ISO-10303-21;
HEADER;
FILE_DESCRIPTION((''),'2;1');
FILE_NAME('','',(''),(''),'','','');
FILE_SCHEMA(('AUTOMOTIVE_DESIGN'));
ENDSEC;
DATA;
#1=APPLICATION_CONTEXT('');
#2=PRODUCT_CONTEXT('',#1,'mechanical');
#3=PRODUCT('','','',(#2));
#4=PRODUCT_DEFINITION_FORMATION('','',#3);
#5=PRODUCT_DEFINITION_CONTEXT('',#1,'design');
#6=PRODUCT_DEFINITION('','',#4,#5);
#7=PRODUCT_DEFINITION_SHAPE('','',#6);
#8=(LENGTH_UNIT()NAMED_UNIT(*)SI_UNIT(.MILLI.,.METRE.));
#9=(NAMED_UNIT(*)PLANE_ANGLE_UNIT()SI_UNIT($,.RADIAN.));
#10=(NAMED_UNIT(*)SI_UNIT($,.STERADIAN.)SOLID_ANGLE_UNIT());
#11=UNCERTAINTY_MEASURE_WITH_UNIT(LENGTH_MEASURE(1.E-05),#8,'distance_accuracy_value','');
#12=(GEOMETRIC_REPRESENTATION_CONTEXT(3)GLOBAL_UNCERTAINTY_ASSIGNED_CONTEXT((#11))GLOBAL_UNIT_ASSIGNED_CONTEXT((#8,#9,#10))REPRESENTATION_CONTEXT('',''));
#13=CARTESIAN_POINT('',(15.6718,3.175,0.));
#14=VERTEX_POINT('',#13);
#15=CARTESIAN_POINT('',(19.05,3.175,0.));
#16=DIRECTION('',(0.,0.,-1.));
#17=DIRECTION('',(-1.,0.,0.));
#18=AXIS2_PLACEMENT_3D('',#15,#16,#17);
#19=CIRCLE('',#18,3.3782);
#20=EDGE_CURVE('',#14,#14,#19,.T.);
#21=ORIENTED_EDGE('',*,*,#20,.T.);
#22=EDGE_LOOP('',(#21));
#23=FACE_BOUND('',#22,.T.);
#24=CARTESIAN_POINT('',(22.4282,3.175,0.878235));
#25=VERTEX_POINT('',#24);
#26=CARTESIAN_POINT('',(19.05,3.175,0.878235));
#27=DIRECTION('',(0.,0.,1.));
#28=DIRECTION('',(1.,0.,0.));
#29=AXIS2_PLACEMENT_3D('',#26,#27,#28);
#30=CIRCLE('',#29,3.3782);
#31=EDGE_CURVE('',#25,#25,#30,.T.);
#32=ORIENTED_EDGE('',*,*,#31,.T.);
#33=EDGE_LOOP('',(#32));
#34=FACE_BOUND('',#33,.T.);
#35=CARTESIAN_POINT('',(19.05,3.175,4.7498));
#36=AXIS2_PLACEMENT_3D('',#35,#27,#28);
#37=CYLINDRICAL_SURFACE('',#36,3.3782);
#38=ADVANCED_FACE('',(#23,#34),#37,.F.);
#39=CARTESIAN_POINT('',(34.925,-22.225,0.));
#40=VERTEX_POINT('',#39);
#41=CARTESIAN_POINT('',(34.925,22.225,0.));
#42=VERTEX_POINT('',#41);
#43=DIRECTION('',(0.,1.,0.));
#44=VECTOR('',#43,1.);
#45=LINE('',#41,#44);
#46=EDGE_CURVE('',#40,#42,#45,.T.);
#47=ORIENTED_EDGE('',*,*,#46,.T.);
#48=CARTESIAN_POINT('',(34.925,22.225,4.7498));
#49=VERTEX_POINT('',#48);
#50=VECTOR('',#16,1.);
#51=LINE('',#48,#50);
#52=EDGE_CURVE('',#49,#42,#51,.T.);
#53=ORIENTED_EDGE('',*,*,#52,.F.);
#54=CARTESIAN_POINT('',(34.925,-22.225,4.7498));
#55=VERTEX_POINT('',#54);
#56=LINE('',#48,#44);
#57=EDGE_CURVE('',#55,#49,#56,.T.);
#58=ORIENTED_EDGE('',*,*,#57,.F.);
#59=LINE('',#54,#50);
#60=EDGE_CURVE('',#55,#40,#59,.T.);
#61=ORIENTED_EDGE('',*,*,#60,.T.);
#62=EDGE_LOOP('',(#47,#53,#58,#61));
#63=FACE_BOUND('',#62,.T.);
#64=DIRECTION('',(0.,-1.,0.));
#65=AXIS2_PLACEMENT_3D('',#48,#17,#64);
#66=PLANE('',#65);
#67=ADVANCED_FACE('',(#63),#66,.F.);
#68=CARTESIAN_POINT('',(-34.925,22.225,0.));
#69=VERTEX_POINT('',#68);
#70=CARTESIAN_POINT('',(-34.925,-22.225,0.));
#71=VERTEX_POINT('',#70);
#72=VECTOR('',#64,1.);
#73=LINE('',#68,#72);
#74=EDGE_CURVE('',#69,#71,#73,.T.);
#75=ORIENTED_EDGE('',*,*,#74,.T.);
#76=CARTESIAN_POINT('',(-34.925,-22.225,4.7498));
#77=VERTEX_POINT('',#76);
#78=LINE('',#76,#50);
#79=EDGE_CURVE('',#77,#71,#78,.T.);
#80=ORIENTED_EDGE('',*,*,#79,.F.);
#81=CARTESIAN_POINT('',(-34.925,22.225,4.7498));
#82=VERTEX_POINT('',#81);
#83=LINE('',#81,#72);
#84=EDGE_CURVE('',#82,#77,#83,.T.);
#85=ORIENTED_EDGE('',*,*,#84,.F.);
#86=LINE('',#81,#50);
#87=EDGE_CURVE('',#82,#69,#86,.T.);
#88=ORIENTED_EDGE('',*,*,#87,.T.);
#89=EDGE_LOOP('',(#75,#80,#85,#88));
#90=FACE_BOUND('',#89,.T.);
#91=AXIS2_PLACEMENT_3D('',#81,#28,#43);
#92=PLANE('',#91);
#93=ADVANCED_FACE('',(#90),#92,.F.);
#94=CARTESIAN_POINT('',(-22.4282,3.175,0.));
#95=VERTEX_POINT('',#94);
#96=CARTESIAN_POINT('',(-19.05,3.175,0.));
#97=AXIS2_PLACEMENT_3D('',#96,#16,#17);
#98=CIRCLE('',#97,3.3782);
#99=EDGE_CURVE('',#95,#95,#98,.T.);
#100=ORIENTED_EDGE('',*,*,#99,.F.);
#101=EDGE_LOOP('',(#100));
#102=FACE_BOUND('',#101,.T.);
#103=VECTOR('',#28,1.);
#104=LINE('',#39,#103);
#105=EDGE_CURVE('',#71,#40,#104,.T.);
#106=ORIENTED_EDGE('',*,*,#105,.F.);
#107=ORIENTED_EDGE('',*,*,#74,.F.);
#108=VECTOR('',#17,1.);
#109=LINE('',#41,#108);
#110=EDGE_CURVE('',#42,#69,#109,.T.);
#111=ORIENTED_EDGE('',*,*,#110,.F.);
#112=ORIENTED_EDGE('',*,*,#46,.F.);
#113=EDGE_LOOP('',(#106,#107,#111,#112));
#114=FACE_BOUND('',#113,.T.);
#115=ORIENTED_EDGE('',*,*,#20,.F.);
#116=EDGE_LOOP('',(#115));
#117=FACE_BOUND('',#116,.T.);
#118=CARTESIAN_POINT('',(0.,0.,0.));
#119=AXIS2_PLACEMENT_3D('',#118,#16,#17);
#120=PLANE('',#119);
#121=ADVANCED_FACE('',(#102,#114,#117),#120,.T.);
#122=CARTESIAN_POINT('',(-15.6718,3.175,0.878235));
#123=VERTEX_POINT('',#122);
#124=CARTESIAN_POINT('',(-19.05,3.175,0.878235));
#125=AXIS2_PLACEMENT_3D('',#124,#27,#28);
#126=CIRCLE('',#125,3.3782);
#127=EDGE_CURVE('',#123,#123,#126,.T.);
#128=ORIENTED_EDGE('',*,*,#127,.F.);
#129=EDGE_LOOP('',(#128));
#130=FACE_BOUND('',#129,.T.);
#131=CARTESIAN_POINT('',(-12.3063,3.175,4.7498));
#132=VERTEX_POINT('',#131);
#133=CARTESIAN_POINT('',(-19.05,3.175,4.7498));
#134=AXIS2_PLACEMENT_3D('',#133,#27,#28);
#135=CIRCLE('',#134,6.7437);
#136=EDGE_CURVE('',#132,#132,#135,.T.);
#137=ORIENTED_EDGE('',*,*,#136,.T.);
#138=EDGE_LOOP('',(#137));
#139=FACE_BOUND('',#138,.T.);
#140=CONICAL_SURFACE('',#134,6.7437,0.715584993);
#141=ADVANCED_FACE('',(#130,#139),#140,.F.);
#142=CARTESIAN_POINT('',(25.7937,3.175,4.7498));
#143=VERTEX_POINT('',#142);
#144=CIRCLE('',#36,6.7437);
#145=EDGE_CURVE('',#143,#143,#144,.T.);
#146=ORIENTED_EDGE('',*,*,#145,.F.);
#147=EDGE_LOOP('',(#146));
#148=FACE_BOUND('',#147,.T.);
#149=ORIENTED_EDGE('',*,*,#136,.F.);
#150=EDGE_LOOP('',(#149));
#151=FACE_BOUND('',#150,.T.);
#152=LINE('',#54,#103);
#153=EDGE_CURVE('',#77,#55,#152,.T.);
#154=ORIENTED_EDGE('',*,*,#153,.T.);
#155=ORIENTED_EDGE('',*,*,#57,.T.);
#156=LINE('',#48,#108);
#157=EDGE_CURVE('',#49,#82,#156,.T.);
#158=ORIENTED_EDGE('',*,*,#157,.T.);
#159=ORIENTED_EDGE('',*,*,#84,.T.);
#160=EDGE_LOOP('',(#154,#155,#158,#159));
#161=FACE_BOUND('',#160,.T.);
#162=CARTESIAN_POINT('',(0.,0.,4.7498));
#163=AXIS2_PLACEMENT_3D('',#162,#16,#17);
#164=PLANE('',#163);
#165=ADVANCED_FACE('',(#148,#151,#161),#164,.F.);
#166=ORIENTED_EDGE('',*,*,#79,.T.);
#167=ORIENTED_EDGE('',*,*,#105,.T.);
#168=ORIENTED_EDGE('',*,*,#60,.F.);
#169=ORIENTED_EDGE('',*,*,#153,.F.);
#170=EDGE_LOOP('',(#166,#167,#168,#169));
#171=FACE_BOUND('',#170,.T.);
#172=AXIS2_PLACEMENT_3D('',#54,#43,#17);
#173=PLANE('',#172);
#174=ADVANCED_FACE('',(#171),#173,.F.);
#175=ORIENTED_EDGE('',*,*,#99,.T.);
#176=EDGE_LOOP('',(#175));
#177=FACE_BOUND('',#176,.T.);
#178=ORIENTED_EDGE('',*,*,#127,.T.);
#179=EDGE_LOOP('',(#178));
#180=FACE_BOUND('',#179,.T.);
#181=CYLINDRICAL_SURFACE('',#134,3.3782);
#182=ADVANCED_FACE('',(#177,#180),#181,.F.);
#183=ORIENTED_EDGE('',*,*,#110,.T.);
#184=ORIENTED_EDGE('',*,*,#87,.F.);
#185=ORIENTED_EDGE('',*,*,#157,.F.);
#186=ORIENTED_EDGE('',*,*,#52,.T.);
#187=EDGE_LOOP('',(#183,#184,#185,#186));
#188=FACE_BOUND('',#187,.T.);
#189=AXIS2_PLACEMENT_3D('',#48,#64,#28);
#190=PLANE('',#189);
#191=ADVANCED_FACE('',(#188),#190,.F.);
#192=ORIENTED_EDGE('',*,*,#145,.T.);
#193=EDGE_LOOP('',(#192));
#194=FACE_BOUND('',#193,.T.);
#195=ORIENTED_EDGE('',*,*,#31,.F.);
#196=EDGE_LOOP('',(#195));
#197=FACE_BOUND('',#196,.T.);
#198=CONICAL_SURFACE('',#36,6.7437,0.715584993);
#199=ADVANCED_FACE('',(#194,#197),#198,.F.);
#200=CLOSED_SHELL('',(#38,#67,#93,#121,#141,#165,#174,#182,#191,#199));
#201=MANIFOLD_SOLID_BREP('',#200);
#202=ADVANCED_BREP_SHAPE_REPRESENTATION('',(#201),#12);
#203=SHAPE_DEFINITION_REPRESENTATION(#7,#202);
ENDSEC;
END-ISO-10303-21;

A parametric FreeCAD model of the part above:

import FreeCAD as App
import Part
import Sketcher

V = App.Vector
Q = App.Units.Quantity

doc = App.newDocument("Part")
body = doc.addObject("PartDesign::Body", "Body")

sketch1 = body.newObject("Sketcher::SketchObject", "Sketch")
sketch1.AttachmentSupport = (doc.getObject("XY_Plane"), [""])
sketch1.MapMode = "FlatFace"
sketch1.addGeometry([
    Part.LineSegment(V(-34.925, 22.225, 0), V(-34.925, -22.225, 0)),
    Part.LineSegment(V(-34.925, -22.225, 0), V(34.925, -22.225, 0)),
    Part.LineSegment(V(34.925, -22.225, 0), V(34.925, 22.225, 0)),
    Part.LineSegment(V(34.925, 22.225, 0), V(-34.925, 22.225, 0)),
], False)
sketch1.addConstraint([
    Sketcher.Constraint("Coincident", 0, 2, 1, 1),
    Sketcher.Constraint("Coincident", 1, 2, 2, 1),
    Sketcher.Constraint("Coincident", 2, 2, 3, 1),
    Sketcher.Constraint("Coincident", 3, 2, 0, 1),
    Sketcher.Constraint("Vertical", 0),
    Sketcher.Constraint("Horizontal", 1),
    Sketcher.Constraint("Vertical", 2),
    Sketcher.Constraint("Horizontal", 3),
    Sketcher.Constraint("Symmetric", 0, 2, 2, 2, -1, 1),
    Sketcher.Constraint("DistanceX", 1, 1, 1, 2, Q("2.75 in")),
    Sketcher.Constraint("DistanceY", 0, 2, 0, 1, Q("1.75 in")),
])
pad1 = body.newObject("PartDesign::Pad", "Pad")
pad1.Profile = sketch1
pad1.Length = Q("0.187 in")

sketch2 = body.newObject("Sketcher::SketchObject", "Sketch001")
sketch2.AttachmentSupport = (doc.getObject("YZ_Plane"), [""])
sketch2.MapMode = "FlatFace"
sketch2.AttachmentOffset = App.Placement(V(0, 0, -0.75 * 25.4), App.Rotation())
sketch2.addGeometry([
    Part.LineSegment(V(3.175, 0, 0), V(3.175, 4.7498, 0)),
    Part.LineSegment(V(3.175, 4.7498, 0), V(-3.5687, 4.7498, 0)),
    Part.LineSegment(V(-3.5687, 4.7498, 0), V(-0.2032, 0.878235, 0)),
    Part.LineSegment(V(-0.2032, 0.878235, 0), V(-0.2032, 0, 0)),
    Part.LineSegment(V(-0.2032, 0, 0), V(3.175, 0, 0)),
], False)
sketch2.addGeometry(Part.LineSegment(V(3.175, 4.7498, 0), V(3.175, 0, 0)), True)
sketch2.addConstraint([
    Sketcher.Constraint("Coincident", 0, 2, 1, 1),
    Sketcher.Constraint("Coincident", 1, 2, 2, 1),
    Sketcher.Constraint("Coincident", 2, 2, 3, 1),
    Sketcher.Constraint("Coincident", 3, 2, 4, 1),
    Sketcher.Constraint("Coincident", 4, 2, 0, 1),
    Sketcher.Constraint("Vertical", 0),
    Sketcher.Constraint("Horizontal", 1),
    Sketcher.Constraint("Vertical", 3),
    Sketcher.Constraint("Horizontal", 4),
    Sketcher.Constraint("Vertical", 5),
    Sketcher.Constraint("Coincident", 5, 1, 0, 2),
    Sketcher.Constraint("PointOnObject", 3, 2, -1),
    Sketcher.Constraint("PointOnObject", 5, 2, -1),
    Sketcher.Constraint("Angle", 2, Q("-49 deg")),
    Sketcher.Constraint("DistanceX", 4, 1, 4, 2, Q("0.133 in")),
    Sketcher.Constraint("DistanceY", 0, 1, 0, 2, Q("0.187 in")),
    Sketcher.Constraint("DistanceX", 1, 2, 1, 1, Q("0.2655 in")),
    Sketcher.Constraint("DistanceX", -1, 1, 0, 2, Q("0.125 in")),
])
groove = body.newObject("PartDesign::Groove", "Groove")
groove.Profile = sketch2
groove.ReferenceAxis = (sketch2, ["Axis0"])
groove.Angle = 360
doc.recompute()

linearpattern = body.newObject("PartDesign::LinearPattern", "LinearPattern")
linearpattern.Originals = [groove]
linearpattern.Direction = (doc.getObject("X_Axis"), [""])
linearpattern.Mode = "offset"
linearpattern.Offset = Q("1.5 in")
linearpattern.Occurrences = 2
body.Tip = linearpattern

doc.recompute()
